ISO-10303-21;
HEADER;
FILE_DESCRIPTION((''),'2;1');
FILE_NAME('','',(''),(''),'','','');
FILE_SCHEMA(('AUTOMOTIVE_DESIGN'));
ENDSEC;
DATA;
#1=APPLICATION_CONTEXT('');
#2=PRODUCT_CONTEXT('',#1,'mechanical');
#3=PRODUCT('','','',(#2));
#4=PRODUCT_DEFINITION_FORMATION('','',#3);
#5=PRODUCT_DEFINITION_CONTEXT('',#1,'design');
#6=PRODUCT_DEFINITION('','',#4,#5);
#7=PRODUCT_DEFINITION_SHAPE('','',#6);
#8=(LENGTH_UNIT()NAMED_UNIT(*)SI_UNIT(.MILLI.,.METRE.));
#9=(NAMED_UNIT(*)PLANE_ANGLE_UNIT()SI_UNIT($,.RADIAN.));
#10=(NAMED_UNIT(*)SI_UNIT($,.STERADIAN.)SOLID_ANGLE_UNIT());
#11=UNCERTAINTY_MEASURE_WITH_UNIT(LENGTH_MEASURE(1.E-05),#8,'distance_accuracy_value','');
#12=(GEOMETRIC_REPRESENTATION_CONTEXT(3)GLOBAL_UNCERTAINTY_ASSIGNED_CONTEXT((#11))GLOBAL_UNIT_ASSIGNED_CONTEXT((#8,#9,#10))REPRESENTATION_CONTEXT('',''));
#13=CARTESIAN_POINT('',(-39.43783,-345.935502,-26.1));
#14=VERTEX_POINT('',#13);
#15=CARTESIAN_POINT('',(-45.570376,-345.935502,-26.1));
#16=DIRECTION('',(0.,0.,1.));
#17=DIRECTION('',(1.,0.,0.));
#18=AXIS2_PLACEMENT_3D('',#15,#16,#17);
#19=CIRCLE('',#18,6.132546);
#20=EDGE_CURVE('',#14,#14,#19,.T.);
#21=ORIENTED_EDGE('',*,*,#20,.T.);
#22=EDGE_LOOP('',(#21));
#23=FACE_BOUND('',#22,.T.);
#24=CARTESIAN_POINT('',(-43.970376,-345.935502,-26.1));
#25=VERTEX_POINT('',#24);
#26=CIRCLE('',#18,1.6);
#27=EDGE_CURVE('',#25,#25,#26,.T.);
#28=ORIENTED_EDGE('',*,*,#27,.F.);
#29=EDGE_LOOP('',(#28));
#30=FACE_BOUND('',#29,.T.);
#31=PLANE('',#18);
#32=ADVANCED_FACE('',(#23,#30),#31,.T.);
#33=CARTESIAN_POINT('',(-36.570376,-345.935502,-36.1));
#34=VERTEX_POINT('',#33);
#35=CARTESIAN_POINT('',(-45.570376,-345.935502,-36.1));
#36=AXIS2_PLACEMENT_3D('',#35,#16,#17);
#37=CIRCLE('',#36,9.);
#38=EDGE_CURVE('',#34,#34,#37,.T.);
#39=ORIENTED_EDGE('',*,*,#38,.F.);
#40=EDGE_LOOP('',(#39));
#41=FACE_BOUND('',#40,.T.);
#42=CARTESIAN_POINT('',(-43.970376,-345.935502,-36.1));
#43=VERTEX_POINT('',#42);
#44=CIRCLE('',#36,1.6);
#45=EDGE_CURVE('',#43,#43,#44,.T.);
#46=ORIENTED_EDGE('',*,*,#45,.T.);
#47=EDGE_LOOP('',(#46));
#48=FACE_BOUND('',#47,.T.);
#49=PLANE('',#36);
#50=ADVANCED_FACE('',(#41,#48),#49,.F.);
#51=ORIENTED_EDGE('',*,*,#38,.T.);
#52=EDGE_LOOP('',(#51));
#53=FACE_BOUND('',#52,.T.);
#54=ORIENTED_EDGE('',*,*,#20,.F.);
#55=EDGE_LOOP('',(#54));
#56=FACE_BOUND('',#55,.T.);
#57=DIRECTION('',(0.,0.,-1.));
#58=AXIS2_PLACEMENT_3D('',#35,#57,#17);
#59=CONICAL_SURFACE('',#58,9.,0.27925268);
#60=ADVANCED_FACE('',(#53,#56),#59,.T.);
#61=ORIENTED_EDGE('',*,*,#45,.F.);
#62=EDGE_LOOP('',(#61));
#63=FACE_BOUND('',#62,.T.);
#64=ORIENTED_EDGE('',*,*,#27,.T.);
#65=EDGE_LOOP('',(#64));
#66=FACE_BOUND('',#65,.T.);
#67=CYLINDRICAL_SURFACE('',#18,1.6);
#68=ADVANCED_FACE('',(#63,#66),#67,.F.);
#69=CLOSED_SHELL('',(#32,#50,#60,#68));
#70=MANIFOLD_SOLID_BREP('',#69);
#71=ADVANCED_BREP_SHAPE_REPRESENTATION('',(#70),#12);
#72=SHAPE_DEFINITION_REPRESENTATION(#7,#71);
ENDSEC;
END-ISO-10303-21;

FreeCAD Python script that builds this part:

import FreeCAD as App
import Part
import Sketcher
Q = App.Units.Quantity

doc = App.newDocument("Part")
body = doc.addObject("PartDesign::Body", "Body")

sketch1 = body.newObject("Sketcher::SketchObject", "Sketch")
sketch1.AttachmentSupport = (doc.getObject("XY_Plane"), [""])
sketch1.MapMode = "FlatFace"
sketch1.AttachmentOffset = App.Placement(App.Vector(0, 0, -36.1), App.Rotation())
sketch1.addGeometry(Part.Circle(App.Vector(-45.570376, -345.935502, 0), App.Vector(0, 0, 1), 9), False)
sketch1.addConstraint([
    Sketcher.Constraint("Diameter", 0, Q("18 mm")),
    Sketcher.Constraint("DistanceX", 0, 3, -1, 1, Q("45.570376 mm")),
    Sketcher.Constraint("DistanceY", 0, 3, -1, 1, Q("345.935502 mm")),
])
pad1 = body.newObject("PartDesign::Pad", "Pad")
pad1.Profile = sketch1
pad1.Length = 10
pad1.TaperAngle = -16

sketch2 = body.newObject("Sketcher::SketchObject", "Sketch001")
sketch2.AttachmentSupport = (doc.getObject("XY_Plane"), [""])
sketch2.MapMode = "FlatFace"
sketch2.AttachmentOffset = App.Placement(App.Vector(0, 0, -26.1), App.Rotation())
sketch2.addGeometry(Part.Circle(App.Vector(-45.570376, -345.935502, 0), App.Vector(0, 0, 1), 1.6), False)
sketch2.addConstraint([
    Sketcher.Constraint("Diameter", 0, Q("3.2 mm")),
    Sketcher.Constraint("DistanceX", 0, 3, -1, 1, Q("45.570376 mm")),
    Sketcher.Constraint("DistanceY", 0, 3, -1, 1, Q("345.935502 mm")),
])
doc.recompute()
hole = body.newObject("PartDesign::Hole", "Hole")
hole.Profile = sketch2
hole.ThreadType = "None"
hole.Diameter = 3.2
hole.DepthType = "ThroughAll"

doc.recompute()
